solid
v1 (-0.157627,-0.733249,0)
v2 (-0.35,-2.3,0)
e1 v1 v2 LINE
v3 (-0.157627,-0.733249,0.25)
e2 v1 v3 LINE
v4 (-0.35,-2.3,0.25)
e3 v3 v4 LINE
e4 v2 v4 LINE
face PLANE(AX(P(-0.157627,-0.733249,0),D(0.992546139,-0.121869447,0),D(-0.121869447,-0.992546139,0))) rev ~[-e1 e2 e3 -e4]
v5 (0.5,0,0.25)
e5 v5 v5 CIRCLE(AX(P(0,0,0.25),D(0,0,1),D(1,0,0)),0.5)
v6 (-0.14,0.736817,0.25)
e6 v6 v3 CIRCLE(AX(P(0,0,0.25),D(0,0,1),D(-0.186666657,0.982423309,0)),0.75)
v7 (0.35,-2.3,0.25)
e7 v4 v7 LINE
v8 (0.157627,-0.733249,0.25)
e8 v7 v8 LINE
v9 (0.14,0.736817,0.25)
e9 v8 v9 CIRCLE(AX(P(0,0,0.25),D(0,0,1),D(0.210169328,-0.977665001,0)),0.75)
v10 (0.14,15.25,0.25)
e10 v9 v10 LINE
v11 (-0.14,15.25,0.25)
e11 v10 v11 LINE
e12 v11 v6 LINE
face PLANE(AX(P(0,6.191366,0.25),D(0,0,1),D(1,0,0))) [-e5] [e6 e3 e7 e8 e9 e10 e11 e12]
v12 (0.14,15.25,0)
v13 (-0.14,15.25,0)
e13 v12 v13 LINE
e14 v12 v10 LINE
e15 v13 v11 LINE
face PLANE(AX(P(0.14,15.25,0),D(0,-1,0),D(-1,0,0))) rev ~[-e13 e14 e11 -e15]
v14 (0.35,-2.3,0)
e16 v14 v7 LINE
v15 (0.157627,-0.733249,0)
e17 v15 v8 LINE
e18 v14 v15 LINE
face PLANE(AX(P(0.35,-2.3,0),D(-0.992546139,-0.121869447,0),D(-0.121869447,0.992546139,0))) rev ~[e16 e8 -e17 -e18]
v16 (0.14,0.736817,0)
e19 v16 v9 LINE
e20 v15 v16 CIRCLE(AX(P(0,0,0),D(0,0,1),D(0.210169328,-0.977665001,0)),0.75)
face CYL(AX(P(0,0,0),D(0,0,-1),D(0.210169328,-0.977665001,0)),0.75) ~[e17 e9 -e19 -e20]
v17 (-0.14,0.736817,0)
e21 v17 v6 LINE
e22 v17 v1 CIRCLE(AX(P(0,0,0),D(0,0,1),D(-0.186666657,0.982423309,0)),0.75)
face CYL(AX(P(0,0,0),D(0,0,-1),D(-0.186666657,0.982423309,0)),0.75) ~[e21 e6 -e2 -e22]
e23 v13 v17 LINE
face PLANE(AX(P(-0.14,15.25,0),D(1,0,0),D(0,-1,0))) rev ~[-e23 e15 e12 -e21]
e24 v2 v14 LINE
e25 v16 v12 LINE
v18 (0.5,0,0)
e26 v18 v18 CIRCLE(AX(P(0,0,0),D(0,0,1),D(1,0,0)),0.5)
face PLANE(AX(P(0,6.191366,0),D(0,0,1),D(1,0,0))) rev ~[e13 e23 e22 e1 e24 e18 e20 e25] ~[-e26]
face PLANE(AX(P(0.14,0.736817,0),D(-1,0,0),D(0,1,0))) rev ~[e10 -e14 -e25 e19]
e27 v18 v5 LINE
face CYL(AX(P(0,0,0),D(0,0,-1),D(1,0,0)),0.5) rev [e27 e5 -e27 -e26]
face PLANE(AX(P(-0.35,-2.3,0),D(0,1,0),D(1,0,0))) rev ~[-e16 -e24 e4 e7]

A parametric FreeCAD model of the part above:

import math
import FreeCAD as App
import Part
import Sketcher
from FreeCAD import Vector
Q = App.Units.Quantity

doc = App.newDocument("Part")
params = doc.addObject("Spreadsheet::Sheet", "Params")
for row, (alias, value) in enumerate([
    ("sketch1_diameter", "1 mm"),
    ("sketch1_radius", "0.75 mm"),
    ("sketch1_width", "0.7 mm"),
    ("sketch1_width2", "0.28 mm"),
    ("pad1_length", "0.25 mm"),
], start=1):
    params.set(f"A{row}", alias)
    params.set(f"B{row}", "=" + value)
    params.setAlias(f"B{row}", alias)

body = doc.addObject("PartDesign::Body", "Body")

# Sketch on XY plane
sketch1 = body.newObject("Sketcher::SketchObject", "Sketch")
sketch1.AttachmentSupport = (doc.getObject("XY_Plane"), [""])
sketch1.MapMode = "FlatFace"
sketch1.addGeometry([
    Part.LineSegment(Vector(0.35, -2.3, 0), Vector(0.16, -0.73, 0)),  # 0
    Part.ArcOfCircle(Part.Circle(Vector(0, 0, 0), Vector(0, 0, 1), 0.75), math.radians(-78), math.radians(79)),  # 1
    Part.LineSegment(Vector(0.14, 0.74, 0), Vector(0.14, 15.25, 0)),  # 2
    Part.LineSegment(Vector(0.14, 15.25, 0), Vector(-0.14, 15.25, 0)),  # 3
    Part.LineSegment(Vector(-0.14, 15.25, 0), Vector(-0.14, 0.74, 0)),  # 4
    Part.ArcOfCircle(Part.Circle(Vector(0, 0, 0), Vector(0, 0, 1), 0.75), math.radians(101), math.radians(258)),  # 5
    Part.LineSegment(Vector(-0.16, -0.73, 0), Vector(-0.35, -2.3, 0)),  # 6
    Part.LineSegment(Vector(-0.35, -2.3, 0), Vector(0.35, -2.3, 0)),  # 7
    Part.Circle(Vector(0, 0, 0), Vector(0, 0, 1), 0.5),  # 8
], False)
sketch1.addConstraint([
    Sketcher.Constraint("Coincident", 0, 2, 1, 1),
    Sketcher.Constraint("Coincident", 1, 2, 2, 1),
    Sketcher.Constraint("Coincident", 2, 2, 3, 1),
    Sketcher.Constraint("Coincident", 3, 2, 4, 1),
    Sketcher.Constraint("Coincident", 4, 2, 5, 1),
    Sketcher.Constraint("Coincident", 5, 2, 6, 1),
    Sketcher.Constraint("Coincident", 6, 2, 7, 1),
    Sketcher.Constraint("Coincident", 7, 2, 0, 1),
    Sketcher.Constraint("Vertical", 2),
    Sketcher.Constraint("Horizontal", 3),
    Sketcher.Constraint("Vertical", 4),
    Sketcher.Constraint("Horizontal", 7),
    Sketcher.Constraint("Coincident", 1, 3, -1, 1),
    Sketcher.Constraint("Coincident", 5, 3, -1, 1),
    Sketcher.Constraint("Coincident", 8, 3, -1, 1),
    Sketcher.Constraint("Equal", 1, 5),
    Sketcher.Constraint("Horizontal", 1, 2, 4, 2),
    Sketcher.Constraint("Horizontal", 0, 2, 5, 2),
    Sketcher.Constraint("Equal", 0, 6),
    Sketcher.Constraint("Diameter", 8, 1.0),
    Sketcher.Constraint("Angle", 0, Q("97.000006 deg")),
    Sketcher.Constraint("Radius", 1, 0.75),
    Sketcher.Constraint("DistanceX", 7, 1, 7, 2, 0.7),
    Sketcher.Constraint("DistanceX", 3, 2, 3, 1, 0.28),
    Sketcher.Constraint("DistanceY", 6, 2, -1, 1, 2.3),
    Sketcher.Constraint("DistanceY", -1, 1, 2, 2, 15.25),
])
sketch1.setExpression("Constraints[19]", "Params.sketch1_diameter")
sketch1.setExpression("Constraints[21]", "Params.sketch1_radius")
sketch1.setExpression("Constraints[22]", "Params.sketch1_width")
sketch1.setExpression("Constraints[23]", "Params.sketch1_width2")
pad1 = body.newObject("PartDesign::Pad", "Pad")
pad1.Profile = sketch1
pad1.setExpression("Length", "Params.pad1_length")

doc.recompute()
